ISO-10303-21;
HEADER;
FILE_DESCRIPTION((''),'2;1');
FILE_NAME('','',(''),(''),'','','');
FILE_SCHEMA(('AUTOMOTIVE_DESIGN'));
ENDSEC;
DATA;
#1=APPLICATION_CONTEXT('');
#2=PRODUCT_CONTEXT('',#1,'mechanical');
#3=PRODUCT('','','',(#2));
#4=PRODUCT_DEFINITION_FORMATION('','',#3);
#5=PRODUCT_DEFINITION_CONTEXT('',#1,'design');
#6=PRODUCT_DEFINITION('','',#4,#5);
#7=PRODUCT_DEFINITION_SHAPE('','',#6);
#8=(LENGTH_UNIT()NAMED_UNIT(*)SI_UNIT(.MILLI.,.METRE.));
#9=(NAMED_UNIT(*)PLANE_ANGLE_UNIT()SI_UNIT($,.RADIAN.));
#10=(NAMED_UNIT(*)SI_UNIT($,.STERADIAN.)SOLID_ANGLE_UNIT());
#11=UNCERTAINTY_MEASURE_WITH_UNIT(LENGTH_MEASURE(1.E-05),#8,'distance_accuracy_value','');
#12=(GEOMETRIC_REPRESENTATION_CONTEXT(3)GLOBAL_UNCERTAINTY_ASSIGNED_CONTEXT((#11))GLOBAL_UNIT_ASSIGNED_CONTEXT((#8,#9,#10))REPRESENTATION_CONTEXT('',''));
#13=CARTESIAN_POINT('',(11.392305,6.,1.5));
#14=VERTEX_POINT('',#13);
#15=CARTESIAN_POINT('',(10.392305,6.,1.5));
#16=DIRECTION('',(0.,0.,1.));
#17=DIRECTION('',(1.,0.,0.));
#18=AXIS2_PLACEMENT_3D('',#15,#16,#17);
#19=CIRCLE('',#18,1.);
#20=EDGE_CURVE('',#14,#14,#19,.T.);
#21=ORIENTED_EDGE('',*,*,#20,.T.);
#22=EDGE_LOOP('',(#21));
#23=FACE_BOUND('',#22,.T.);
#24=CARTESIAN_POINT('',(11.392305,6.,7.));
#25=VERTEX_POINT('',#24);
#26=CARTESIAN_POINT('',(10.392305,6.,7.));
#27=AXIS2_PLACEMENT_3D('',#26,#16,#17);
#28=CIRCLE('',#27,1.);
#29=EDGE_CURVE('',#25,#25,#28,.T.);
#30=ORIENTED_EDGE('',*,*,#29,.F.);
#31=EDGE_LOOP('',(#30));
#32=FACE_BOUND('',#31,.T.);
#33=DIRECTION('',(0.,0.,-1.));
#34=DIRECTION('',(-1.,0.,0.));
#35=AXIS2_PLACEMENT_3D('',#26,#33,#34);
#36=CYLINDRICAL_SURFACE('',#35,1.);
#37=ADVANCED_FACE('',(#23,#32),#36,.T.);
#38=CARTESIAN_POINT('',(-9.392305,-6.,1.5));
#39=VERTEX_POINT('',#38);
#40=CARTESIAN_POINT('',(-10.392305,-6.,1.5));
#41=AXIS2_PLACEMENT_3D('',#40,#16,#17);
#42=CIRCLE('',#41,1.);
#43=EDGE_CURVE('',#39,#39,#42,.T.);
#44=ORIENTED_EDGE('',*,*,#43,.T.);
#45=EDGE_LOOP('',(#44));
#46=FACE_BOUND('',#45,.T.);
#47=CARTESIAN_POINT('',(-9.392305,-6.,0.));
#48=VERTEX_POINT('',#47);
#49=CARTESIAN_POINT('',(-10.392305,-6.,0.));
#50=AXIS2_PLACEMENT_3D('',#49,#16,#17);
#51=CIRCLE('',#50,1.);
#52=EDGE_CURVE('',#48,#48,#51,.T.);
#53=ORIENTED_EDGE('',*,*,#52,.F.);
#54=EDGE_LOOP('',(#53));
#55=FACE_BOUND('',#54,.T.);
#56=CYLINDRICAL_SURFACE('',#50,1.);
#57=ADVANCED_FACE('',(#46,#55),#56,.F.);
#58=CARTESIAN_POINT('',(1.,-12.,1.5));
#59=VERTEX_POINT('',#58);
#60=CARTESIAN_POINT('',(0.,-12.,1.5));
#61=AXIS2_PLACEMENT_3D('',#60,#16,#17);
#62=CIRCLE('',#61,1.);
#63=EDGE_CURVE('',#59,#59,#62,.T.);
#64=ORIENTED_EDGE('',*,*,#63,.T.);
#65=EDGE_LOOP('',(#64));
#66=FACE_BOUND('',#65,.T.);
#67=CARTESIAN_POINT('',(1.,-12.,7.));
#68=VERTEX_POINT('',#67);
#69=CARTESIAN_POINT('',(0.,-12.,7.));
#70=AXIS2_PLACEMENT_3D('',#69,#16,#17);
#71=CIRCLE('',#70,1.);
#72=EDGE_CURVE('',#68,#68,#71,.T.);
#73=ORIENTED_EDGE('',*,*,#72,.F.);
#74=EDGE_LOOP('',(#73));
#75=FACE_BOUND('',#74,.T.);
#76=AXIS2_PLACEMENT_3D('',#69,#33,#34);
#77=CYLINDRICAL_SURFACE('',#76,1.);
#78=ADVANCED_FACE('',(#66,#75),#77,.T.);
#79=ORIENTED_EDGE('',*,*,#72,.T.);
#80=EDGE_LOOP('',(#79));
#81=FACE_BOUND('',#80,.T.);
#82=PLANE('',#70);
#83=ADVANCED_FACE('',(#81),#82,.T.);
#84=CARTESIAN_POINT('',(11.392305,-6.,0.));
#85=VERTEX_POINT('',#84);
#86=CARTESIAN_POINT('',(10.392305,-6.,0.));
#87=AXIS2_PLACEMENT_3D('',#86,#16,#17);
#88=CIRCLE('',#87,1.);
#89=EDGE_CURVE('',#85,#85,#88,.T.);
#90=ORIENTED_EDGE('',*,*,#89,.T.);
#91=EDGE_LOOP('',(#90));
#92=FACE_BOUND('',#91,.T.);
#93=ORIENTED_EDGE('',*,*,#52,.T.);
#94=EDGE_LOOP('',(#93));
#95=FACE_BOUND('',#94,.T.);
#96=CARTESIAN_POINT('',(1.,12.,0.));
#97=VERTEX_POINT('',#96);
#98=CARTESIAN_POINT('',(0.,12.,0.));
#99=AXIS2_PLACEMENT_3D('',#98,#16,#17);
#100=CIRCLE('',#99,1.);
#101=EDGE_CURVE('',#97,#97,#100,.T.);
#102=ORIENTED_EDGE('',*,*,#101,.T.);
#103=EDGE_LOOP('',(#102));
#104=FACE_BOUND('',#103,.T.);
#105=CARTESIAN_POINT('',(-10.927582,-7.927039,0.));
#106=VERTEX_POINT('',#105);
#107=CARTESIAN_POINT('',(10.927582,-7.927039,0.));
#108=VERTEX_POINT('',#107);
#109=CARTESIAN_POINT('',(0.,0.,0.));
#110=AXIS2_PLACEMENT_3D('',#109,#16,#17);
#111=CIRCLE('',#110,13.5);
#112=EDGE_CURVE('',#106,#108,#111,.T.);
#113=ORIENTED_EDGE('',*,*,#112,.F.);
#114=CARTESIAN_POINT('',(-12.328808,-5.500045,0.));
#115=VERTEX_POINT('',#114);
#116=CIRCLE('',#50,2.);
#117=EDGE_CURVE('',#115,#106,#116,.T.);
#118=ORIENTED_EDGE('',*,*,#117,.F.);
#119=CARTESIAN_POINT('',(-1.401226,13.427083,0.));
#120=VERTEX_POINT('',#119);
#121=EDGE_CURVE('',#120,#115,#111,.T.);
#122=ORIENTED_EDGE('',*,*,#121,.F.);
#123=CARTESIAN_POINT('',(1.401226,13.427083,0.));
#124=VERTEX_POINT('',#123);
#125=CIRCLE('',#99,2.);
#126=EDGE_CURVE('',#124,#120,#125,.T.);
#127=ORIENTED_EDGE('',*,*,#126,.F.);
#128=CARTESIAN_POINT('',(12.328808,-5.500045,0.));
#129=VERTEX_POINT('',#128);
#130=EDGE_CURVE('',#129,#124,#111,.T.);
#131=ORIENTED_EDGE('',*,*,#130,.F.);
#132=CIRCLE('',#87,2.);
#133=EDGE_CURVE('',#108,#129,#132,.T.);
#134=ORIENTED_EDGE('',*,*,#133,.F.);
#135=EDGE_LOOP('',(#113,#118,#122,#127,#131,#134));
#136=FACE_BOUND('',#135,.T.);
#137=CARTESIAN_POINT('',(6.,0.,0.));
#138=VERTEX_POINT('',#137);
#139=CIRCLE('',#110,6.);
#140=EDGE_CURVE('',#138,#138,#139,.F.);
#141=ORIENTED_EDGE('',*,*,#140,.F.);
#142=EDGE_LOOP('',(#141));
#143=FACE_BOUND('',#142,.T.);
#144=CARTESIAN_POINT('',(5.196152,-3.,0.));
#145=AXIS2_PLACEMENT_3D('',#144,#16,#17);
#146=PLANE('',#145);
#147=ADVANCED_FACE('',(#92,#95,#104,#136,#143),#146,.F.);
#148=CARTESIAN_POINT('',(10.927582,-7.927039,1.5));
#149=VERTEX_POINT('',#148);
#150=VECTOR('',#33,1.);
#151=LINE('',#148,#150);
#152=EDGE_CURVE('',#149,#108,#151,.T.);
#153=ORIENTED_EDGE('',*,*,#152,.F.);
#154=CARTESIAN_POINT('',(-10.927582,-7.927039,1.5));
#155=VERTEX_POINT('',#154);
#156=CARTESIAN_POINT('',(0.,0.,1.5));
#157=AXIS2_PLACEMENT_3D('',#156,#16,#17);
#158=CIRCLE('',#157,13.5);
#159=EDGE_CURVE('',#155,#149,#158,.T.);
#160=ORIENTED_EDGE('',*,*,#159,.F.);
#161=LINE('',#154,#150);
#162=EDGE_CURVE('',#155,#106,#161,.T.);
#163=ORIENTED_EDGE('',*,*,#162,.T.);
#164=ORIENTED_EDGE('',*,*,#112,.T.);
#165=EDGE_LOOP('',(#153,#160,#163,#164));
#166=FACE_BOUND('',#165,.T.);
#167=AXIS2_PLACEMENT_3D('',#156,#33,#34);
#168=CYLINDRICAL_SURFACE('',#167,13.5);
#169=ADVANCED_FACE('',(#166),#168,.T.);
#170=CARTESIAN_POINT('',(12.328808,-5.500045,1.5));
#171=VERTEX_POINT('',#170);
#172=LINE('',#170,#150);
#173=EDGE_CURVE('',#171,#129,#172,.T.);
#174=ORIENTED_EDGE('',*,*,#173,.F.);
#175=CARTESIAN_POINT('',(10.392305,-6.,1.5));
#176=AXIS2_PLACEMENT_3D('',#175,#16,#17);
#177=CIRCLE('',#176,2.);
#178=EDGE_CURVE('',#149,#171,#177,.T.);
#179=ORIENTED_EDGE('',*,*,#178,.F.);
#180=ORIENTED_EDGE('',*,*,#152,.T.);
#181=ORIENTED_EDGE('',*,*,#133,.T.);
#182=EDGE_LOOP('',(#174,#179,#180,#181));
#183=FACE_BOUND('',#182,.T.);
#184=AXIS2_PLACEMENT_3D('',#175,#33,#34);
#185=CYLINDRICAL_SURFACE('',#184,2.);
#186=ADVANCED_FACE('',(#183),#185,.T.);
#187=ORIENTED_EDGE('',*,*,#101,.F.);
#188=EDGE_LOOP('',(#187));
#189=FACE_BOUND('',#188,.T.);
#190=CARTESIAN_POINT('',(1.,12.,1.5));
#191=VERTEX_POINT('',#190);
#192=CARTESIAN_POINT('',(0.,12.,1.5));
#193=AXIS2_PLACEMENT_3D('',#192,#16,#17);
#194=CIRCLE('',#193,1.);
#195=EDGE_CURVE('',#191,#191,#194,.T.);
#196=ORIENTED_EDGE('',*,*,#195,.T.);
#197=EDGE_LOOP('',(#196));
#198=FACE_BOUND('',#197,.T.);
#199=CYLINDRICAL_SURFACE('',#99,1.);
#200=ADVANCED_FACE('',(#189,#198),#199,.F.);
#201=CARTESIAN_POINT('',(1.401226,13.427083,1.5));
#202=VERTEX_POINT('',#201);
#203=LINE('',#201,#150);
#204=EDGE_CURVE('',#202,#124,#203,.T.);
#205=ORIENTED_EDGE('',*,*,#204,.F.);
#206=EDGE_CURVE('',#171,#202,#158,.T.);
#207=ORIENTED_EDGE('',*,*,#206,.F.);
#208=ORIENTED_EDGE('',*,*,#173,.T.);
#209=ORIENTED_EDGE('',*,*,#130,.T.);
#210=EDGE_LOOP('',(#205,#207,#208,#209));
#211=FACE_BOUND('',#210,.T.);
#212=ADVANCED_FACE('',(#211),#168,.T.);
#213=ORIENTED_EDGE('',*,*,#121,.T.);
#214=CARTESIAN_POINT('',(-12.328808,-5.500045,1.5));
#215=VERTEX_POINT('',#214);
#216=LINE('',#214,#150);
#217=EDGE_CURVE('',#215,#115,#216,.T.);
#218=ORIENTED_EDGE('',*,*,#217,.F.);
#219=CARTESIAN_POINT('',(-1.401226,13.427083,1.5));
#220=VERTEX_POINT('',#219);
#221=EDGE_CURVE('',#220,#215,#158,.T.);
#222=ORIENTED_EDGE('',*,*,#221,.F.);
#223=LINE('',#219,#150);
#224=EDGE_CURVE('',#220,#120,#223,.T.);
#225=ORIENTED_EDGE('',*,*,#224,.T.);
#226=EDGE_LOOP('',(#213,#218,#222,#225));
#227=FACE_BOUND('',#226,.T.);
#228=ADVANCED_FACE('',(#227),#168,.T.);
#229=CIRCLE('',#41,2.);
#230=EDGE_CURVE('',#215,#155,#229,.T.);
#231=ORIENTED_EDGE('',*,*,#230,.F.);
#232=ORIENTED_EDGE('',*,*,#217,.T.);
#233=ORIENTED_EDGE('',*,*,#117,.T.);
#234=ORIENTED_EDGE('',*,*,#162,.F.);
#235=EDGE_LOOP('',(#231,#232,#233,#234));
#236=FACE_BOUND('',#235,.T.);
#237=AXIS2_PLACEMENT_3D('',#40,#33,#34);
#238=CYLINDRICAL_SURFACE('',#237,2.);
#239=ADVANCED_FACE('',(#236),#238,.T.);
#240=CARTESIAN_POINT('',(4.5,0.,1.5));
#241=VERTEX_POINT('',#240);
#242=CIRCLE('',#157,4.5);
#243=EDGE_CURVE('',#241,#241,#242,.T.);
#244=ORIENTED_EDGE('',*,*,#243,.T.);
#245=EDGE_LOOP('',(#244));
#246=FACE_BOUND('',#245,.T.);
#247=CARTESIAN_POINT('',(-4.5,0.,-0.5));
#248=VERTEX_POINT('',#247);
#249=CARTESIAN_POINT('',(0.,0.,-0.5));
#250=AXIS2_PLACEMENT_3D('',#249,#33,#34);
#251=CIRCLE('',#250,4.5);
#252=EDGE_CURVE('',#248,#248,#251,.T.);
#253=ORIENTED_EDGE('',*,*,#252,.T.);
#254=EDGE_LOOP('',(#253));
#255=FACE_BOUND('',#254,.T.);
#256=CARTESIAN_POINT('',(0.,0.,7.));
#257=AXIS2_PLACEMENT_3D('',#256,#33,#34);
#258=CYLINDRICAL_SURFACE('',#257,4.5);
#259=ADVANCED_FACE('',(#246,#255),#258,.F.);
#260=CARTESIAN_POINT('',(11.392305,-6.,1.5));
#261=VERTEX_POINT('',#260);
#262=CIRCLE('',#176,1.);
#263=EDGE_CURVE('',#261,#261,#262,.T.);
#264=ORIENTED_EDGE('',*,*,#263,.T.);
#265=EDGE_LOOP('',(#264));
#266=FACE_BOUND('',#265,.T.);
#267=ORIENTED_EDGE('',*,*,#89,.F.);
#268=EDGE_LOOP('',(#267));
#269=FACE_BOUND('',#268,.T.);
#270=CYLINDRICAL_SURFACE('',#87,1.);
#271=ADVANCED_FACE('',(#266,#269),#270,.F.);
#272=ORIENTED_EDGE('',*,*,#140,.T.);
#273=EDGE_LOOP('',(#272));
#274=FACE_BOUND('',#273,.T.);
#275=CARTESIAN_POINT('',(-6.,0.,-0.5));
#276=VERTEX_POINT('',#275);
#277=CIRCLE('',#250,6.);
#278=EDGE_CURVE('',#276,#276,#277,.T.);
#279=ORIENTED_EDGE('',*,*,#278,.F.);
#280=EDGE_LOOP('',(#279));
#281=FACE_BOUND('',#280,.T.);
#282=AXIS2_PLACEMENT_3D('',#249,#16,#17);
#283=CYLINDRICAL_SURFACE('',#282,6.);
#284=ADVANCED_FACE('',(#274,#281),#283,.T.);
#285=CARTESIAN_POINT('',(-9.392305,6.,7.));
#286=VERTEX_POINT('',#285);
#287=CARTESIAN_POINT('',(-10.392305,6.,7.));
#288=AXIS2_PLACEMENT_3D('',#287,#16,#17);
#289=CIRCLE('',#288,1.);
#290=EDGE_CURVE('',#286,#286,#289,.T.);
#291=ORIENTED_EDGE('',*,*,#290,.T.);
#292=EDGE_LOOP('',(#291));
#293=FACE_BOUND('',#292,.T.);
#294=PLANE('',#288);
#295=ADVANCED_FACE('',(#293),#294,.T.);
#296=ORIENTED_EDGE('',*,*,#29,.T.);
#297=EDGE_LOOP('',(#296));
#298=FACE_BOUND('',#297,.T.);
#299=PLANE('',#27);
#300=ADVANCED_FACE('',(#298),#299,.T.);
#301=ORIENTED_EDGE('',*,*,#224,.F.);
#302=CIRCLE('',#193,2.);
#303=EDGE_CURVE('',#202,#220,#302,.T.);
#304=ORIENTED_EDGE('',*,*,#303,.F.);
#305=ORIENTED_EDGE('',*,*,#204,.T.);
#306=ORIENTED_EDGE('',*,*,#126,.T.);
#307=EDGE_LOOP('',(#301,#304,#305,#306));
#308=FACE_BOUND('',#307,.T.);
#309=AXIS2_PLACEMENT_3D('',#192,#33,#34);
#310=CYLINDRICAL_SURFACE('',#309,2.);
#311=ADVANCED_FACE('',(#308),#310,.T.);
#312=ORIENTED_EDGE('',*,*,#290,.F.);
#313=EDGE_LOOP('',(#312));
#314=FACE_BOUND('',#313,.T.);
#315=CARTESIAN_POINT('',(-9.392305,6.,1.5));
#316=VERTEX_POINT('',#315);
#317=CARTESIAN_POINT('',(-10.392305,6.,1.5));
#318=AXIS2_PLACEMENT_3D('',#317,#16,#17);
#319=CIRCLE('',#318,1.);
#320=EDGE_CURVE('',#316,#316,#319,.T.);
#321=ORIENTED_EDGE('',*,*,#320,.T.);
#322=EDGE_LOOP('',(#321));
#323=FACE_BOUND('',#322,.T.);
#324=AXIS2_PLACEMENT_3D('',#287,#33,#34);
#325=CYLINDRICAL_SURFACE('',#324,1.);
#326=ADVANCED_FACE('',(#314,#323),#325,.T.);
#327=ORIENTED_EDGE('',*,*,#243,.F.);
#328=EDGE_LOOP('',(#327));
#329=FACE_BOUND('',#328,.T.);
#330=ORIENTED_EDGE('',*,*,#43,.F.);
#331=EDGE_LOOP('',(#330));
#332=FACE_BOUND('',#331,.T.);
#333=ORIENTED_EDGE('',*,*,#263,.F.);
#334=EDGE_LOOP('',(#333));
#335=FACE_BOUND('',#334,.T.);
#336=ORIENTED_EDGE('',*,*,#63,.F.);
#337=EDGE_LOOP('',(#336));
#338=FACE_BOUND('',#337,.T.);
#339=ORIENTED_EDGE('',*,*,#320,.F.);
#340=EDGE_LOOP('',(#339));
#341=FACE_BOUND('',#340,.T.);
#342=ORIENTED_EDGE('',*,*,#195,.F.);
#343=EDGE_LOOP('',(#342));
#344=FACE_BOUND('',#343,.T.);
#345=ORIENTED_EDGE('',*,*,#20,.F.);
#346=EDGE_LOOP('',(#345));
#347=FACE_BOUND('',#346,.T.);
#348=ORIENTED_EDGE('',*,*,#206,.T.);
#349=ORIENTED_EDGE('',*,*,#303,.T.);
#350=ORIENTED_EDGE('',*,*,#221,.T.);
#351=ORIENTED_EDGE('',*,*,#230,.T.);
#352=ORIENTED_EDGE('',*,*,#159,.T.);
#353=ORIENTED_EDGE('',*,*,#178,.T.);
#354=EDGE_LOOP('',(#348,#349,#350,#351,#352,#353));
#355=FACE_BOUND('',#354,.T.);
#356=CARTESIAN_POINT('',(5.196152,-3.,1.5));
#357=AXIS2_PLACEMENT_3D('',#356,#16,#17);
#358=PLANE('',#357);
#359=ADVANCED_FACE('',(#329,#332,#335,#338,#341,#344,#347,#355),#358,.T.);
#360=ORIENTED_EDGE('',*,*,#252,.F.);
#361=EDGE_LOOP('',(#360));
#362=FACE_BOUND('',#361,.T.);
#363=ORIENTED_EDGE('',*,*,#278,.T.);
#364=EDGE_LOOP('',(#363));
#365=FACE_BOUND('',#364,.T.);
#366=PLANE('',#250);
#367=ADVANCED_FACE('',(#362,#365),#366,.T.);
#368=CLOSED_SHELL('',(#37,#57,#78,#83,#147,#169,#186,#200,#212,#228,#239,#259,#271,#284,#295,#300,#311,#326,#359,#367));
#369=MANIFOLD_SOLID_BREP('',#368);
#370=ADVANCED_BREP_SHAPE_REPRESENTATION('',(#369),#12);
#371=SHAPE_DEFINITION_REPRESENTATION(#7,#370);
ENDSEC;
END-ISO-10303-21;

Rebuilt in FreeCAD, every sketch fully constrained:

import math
import FreeCAD as App
import Part
import Sketcher
Q = App.Units.Quantity

doc = App.newDocument("Part")
body = doc.addObject("PartDesign::Body", "Body")

sketch1 = doc.addObject("Sketcher::SketchObject", "Sketch")
body.addObject(sketch1)
sketch1.AttachmentSupport = (doc.XY_Plane, [""])
sketch1.MapMode = "FlatFace"
sketch1.addGeometry(Part.ArcOfCircle(Part.Circle(App.Vector(0, 0, 0), App.Vector(0, 0, 1), 13.5), math.radians(-24), math.radians(84)), False)
sketch1.addGeometry(Part.ArcOfCircle(Part.Circle(App.Vector(0, 12, 0), App.Vector(0, 0, 1), 2), math.radians(46), math.radians(134)), False)
sketch1.addGeometry(Part.ArcOfCircle(Part.Circle(App.Vector(0, 0, 0), App.Vector(0, 0, 1), 13.5), math.radians(96), math.radians(204)), False)
sketch1.addGeometry(Part.ArcOfCircle(Part.Circle(App.Vector(-10.4, -6, 0), App.Vector(0, 0, 1), 2), math.radians(166), math.radians(254)), False)
sketch1.addGeometry(Part.ArcOfCircle(Part.Circle(App.Vector(0, 0, 0), App.Vector(0, 0, 1), 13.5), math.radians(-144), math.radians(-36)), False)
sketch1.addGeometry(Part.ArcOfCircle(Part.Circle(App.Vector(10.4, -6, 0), App.Vector(0, 0, 1), 2), math.radians(-74), math.radians(14)), False)
sketch1.addConstraint(Sketcher.Constraint("Coincident", 0, 2, 1, 1))
sketch1.addConstraint(Sketcher.Constraint("Coincident", 1, 2, 2, 1))
sketch1.addConstraint(Sketcher.Constraint("Coincident", 2, 2, 3, 1))
sketch1.addConstraint(Sketcher.Constraint("Coincident", 3, 2, 4, 1))
sketch1.addConstraint(Sketcher.Constraint("Coincident", 4, 2, 5, 1))
sketch1.addConstraint(Sketcher.Constraint("Coincident", 5, 2, 0, 1))
sketch1.addConstraint(Sketcher.Constraint("Coincident", 0, 3, -1, 1))
sketch1.addConstraint(Sketcher.Constraint("Coincident", 2, 3, -1, 1))
sketch1.addConstraint(Sketcher.Constraint("Coincident", 4, 3, -1, 1))
sketch1.addConstraint(Sketcher.Constraint("Equal", 0, 2))
sketch1.addConstraint(Sketcher.Constraint("Equal", 1, 3))
sketch1.addConstraint(Sketcher.Constraint("Equal", 2, 4))
sketch1.addConstraint(Sketcher.Constraint("Equal", 3, 5))
sketch1.addConstraint(Sketcher.Constraint("Symmetric", 3, 3, 5, 3, -2))
sketch1.addConstraint(Sketcher.Constraint("PointOnObject", 1, 3, -2))
sketch1.addConstraint(Sketcher.Constraint("Radius", 1, Q("2 mm")))
sketch1.addConstraint(Sketcher.Constraint("Radius", 0, Q("13.5 mm")))
sketch1.addConstraint(Sketcher.Constraint("DistanceY", -1, 1, 1, 3, Q("12 mm")))
sketch1.addConstraint(Sketcher.Constraint("DistanceY", 3, 3, -1, 1, Q("6 mm")))
sketch1.addConstraint(Sketcher.Constraint("DistanceX", 2, 2, -1, 1, Q("12.328808 mm")))
pad1 = doc.addObject("PartDesign::Pad", "Pad")
body.addObject(pad1)
pad1.Profile = sketch1
pad1.Length = 1.5

sketch2 = doc.addObject("Sketcher::SketchObject", "Sketch001")
body.addObject(sketch2)
sketch2.AttachmentSupport = (doc.XY_Plane, [""])
sketch2.MapMode = "FlatFace"
sketch2.AttachmentOffset = App.Placement(App.Vector(0, 0, 1.5), App.Rotation())
sketch2.addGeometry(Part.Circle(App.Vector(0, 12, 0), App.Vector(0, 0, 1), 1), False)
sketch2.addGeometry(Part.Circle(App.Vector(10.4, -6, 0), App.Vector(0, 0, 1), 1), False)
sketch2.addGeometry(Part.Circle(App.Vector(-10.4, -6, 0), App.Vector(0, 0, 1), 1), False)
sketch2.addConstraint(Sketcher.Constraint("Equal", 0, 1))
sketch2.addConstraint(Sketcher.Constraint("Equal", 1, 2))
sketch2.addConstraint(Sketcher.Constraint("Symmetric", 1, 3, 2, 3, -2))
sketch2.addConstraint(Sketcher.Constraint("PointOnObject", 0, 3, -2))
sketch2.addConstraint(Sketcher.Constraint("Diameter", 0, Q("2 mm")))
sketch2.addConstraint(Sketcher.Constraint("DistanceY", -1, 1, 0, 3, Q("12 mm")))
sketch2.addConstraint(Sketcher.Constraint("DistanceY", 1, 3, -1, 1, Q("6 mm")))
sketch2.addConstraint(Sketcher.Constraint("DistanceX", 2, 3, 1, 3, Q("20.78461 mm")))
pocket1 = doc.addObject("PartDesign::Pocket", "Pocket")
body.addObject(pocket1)
pocket1.Profile = sketch2
pocket1.Type = "ThroughAll"

sketch3 = doc.addObject("Sketcher::SketchObject", "Sketch002")
body.addObject(sketch3)
sketch3.AttachmentSupport = (doc.XY_Plane, [""])
sketch3.MapMode = "FlatFace"
sketch3.AttachmentOffset = App.Placement(App.Vector(0, 0, 1.5), App.Rotation())
sketch3.addGeometry(Part.Circle(App.Vector(10.4, 6, 0), App.Vector(0, 0, 1), 1), False)
sketch3.addGeometry(Part.Circle(App.Vector(0, -12, 0), App.Vector(0, 0, 1), 1), False)
sketch3.addGeometry(Part.Circle(App.Vector(-10.4, 6, 0), App.Vector(0, 0, 1), 1), False)
sketch3.addConstraint(Sketcher.Constraint("Equal", 0, 1))
sketch3.addConstraint(Sketcher.Constraint("Equal", 1, 2))
sketch3.addConstraint(Sketcher.Constraint("Symmetric", 0, 3, 2, 3, -2))
sketch3.addConstraint(Sketcher.Constraint("PointOnObject", 1, 3, -2))
sketch3.addConstraint(Sketcher.Constraint("Diameter", 0, Q("2 mm")))
sketch3.addConstraint(Sketcher.Constraint("DistanceY", -1, 1, 0, 3, Q("6 mm")))
sketch3.addConstraint(Sketcher.Constraint("DistanceY", 1, 3, -1, 1, Q("12 mm")))
sketch3.addConstraint(Sketcher.Constraint("DistanceX", 2, 3, 0, 3, Q("20.78461 mm")))
pad2 = doc.addObject("PartDesign::Pad", "Pad001")
body.addObject(pad2)
pad2.Profile = sketch3
pad2.Length = 5.5

sketch4 = doc.addObject("Sketcher::SketchObject", "Sketch003")
body.addObject(sketch4)
sketch4.AttachmentSupport = (doc.XY_Plane, [""])
sketch4.MapMode = "FlatFace"
sketch4.addGeometry(Part.Circle(App.Vector(0, 0, 0), App.Vector(0, 0, 1), 6), False)
sketch4.addConstraint(Sketcher.Constraint("Coincident", 0, 3, -1, 1))
sketch4.addConstraint(Sketcher.Constraint("Diameter", 0, Q("12 mm")))
pad3 = doc.addObject("PartDesign::Pad", "Pad002")
body.addObject(pad3)
pad3.Profile = sketch4
pad3.Length = 0.5
pad3.Reversed = True

sketch5 = doc.addObject("Sketcher::SketchObject", "Sketch004")
body.addObject(sketch5)
sketch5.AttachmentSupport = (doc.XY_Plane, [""])
sketch5.MapMode = "FlatFace"
sketch5.AttachmentOffset = App.Placement(App.Vector(0, 0, -0.5), App.Rotation())
sketch5.addGeometry(Part.Circle(App.Vector(0, 0, 0), App.Vector(0, 0, 1), 4.5), False)
sketch5.addConstraint(Sketcher.Constraint("Coincident", 0, 3, -1, 1))
sketch5.addConstraint(Sketcher.Constraint("Diameter", 0, Q("9 mm")))
pocket2 = doc.addObject("PartDesign::Pocket", "Pocket001")
body.addObject(pocket2)
pocket2.Profile = sketch5
pocket2.Type = "ThroughAll"
pocket2.Reversed = True

doc.recompute()
